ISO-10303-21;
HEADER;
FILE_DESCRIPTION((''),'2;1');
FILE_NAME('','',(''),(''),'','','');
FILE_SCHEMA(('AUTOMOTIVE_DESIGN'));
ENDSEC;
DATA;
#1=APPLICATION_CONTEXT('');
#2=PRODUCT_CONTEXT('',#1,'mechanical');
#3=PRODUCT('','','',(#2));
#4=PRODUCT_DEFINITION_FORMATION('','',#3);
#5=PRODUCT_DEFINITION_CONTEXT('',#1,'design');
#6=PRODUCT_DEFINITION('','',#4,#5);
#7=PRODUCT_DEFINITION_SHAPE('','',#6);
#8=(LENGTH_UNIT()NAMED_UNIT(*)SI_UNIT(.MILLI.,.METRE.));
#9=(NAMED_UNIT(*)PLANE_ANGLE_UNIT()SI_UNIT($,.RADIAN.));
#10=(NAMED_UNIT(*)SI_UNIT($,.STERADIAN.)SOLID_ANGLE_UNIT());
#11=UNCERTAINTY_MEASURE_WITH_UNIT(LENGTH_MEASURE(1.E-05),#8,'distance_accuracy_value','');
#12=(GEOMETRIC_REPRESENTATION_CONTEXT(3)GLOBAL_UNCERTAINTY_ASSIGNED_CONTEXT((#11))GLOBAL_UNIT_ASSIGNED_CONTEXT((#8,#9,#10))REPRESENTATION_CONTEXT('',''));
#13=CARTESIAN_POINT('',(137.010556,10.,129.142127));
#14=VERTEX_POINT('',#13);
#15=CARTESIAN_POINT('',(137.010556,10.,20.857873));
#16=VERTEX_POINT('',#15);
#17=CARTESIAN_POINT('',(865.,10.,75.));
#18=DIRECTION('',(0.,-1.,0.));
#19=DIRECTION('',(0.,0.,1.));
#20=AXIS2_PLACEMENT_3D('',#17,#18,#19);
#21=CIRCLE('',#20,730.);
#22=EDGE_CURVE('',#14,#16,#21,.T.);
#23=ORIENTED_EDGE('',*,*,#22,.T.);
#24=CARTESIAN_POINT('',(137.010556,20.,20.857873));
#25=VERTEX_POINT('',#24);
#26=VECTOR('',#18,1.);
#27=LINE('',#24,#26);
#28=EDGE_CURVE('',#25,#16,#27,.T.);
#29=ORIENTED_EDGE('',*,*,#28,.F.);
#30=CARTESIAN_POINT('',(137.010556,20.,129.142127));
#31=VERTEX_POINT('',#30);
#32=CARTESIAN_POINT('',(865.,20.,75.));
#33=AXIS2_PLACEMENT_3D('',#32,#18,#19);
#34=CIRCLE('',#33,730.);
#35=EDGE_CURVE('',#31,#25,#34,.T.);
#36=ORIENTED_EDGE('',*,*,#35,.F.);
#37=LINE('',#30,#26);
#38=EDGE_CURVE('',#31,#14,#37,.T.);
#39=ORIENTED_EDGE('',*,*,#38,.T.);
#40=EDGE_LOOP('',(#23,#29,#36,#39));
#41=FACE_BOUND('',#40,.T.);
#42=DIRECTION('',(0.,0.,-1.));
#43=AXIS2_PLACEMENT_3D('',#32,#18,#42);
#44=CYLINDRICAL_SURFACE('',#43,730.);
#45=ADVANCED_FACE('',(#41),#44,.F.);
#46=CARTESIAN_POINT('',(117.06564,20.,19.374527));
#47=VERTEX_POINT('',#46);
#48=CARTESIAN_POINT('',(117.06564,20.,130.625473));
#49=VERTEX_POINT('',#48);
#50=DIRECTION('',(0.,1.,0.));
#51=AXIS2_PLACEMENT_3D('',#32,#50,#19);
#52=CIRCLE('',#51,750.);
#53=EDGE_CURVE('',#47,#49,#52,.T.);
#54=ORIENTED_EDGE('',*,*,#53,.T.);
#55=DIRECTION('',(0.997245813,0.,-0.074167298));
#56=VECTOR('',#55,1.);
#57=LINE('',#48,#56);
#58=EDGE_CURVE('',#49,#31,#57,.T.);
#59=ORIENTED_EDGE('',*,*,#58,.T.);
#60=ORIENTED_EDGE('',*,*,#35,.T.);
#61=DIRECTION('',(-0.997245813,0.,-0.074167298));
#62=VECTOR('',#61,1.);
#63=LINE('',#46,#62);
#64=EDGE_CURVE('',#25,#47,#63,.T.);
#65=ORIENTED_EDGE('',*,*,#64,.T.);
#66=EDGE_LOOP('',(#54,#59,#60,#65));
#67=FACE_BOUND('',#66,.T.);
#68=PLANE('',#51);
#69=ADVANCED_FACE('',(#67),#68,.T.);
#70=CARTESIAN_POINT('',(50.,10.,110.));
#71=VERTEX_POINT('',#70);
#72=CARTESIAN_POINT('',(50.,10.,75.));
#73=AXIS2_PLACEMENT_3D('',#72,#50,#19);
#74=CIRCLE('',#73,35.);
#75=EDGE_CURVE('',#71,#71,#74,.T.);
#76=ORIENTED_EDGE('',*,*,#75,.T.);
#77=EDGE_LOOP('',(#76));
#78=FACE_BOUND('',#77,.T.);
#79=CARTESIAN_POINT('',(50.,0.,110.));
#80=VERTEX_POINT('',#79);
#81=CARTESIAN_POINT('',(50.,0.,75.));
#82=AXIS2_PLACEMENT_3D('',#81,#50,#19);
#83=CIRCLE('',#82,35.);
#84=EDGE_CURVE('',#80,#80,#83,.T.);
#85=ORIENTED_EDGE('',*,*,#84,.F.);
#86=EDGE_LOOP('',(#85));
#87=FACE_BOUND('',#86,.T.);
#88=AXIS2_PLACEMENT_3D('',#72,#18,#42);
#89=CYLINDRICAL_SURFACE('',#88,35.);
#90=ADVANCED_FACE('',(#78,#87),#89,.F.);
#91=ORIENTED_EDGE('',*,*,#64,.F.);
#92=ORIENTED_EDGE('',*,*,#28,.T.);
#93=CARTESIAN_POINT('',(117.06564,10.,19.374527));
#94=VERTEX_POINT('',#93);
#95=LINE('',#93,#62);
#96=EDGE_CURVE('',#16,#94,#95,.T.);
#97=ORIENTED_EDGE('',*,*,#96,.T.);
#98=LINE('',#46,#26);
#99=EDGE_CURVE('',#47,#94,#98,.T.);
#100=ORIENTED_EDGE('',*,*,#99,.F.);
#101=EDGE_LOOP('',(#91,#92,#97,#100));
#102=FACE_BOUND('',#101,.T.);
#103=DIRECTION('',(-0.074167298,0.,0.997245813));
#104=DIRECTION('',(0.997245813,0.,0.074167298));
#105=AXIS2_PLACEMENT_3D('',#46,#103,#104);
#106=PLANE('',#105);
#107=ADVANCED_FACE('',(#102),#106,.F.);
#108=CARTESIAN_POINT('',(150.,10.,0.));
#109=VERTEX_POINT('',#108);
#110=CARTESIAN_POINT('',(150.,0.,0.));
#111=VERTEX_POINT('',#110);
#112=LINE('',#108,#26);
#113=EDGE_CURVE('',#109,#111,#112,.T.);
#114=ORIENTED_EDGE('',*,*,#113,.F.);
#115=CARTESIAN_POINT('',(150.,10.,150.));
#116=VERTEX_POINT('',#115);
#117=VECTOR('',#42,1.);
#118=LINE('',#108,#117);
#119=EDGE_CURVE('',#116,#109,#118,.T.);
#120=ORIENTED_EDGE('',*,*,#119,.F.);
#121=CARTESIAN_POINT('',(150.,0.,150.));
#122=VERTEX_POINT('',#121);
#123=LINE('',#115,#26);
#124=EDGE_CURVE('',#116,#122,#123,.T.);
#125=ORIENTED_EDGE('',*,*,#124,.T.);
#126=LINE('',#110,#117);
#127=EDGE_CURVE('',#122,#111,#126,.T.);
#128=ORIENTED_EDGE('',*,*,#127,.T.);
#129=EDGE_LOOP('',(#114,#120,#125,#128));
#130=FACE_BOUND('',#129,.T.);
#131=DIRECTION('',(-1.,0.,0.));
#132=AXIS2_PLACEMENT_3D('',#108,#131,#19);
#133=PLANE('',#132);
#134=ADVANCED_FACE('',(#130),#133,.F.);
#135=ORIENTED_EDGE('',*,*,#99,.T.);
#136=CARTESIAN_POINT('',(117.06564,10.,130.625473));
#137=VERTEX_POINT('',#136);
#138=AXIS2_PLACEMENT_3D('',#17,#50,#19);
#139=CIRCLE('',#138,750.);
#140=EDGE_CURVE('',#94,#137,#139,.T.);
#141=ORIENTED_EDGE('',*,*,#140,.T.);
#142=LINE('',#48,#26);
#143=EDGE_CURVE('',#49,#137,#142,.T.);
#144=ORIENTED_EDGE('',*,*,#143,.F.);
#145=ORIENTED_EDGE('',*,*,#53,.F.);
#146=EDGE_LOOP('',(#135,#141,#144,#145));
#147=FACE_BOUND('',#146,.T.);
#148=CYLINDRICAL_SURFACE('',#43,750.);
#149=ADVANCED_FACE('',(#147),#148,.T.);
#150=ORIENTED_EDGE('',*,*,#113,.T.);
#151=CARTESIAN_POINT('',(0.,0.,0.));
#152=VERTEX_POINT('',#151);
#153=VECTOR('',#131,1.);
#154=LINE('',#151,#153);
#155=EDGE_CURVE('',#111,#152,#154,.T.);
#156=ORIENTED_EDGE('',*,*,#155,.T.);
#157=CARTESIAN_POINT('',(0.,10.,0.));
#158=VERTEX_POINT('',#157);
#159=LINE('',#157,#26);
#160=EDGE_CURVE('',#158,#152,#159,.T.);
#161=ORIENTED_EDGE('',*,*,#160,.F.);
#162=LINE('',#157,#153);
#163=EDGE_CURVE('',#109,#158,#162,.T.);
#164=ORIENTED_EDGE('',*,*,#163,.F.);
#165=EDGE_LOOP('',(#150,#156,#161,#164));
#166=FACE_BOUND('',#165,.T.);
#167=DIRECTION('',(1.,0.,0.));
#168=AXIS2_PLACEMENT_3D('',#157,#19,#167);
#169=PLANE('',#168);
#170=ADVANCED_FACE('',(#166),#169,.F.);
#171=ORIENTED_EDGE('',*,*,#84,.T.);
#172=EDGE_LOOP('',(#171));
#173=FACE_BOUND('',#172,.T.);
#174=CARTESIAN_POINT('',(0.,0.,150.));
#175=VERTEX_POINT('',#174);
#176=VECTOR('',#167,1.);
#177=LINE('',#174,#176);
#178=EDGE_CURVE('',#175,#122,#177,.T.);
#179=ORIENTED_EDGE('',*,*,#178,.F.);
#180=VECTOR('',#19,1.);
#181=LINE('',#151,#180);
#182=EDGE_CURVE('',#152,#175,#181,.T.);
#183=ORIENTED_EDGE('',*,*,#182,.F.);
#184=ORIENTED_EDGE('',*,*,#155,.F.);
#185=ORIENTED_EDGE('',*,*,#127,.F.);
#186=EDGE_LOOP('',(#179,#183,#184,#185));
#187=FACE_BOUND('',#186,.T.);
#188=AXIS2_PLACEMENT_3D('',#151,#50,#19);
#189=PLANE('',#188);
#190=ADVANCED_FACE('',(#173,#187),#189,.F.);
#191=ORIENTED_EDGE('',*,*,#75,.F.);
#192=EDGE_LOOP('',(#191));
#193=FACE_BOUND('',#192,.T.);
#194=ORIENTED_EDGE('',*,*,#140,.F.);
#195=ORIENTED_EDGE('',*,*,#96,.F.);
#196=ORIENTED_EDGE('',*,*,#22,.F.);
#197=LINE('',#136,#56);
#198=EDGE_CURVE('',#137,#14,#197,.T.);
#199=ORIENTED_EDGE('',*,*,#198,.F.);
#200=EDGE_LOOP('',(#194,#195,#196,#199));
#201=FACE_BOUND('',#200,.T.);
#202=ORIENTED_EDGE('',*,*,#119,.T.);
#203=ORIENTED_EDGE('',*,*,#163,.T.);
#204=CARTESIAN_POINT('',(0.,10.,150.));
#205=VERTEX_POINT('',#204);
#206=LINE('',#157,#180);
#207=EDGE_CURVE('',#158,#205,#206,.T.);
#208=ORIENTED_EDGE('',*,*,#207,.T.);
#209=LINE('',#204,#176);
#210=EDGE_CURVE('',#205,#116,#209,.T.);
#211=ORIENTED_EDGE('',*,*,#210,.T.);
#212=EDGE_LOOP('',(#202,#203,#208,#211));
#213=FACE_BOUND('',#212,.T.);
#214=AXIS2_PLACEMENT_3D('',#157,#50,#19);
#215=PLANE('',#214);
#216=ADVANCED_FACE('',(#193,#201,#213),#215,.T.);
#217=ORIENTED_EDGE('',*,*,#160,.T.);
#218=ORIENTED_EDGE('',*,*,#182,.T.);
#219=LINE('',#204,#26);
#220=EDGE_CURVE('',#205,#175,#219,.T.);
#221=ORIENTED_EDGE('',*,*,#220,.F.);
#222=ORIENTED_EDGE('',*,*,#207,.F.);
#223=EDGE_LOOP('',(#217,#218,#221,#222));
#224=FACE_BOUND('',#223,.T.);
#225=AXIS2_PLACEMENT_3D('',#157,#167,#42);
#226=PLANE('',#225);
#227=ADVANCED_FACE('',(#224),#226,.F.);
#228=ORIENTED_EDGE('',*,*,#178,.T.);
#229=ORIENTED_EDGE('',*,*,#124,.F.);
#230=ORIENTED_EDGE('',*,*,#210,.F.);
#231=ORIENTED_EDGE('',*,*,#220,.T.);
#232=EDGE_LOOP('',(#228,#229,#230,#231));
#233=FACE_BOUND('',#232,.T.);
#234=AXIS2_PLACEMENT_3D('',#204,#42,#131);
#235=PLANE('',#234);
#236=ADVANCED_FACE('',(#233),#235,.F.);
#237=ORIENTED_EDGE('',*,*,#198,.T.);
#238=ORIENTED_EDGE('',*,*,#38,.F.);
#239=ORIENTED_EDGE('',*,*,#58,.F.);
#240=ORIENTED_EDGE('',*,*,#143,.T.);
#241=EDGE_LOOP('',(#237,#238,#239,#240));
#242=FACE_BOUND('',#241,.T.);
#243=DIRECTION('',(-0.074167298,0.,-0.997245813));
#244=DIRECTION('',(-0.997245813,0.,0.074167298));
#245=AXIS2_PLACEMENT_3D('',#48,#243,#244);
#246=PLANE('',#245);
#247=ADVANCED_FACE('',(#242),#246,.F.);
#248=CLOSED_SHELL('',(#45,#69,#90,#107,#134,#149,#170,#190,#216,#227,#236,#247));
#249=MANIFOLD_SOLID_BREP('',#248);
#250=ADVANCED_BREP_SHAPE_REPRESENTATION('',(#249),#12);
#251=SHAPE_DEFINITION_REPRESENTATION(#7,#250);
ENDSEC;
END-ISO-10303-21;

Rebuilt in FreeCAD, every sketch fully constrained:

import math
import FreeCAD as App
import Part
import Sketcher

V = App.Vector
Q = App.Units.Quantity

doc = App.newDocument("Part")
body = doc.addObject("PartDesign::Body", "Body")

# Sketch on XZ plane
sketch1 = body.newObject("Sketcher::SketchObject", "Sketch")
sketch1.AttachmentSupport = (doc.getObject("XZ_Plane"), [""])
sketch1.MapMode = "FlatFace"
sketch1.addGeometry(Part.LineSegment(V(0, 0, 0), V(0, 150, 0)), False)
sketch1.addGeometry(Part.LineSegment(V(0, 150, 0), V(150, 150, 0)), False)
sketch1.addGeometry(Part.LineSegment(V(150, 150, 0), V(150, 0, 0)), False)
sketch1.addGeometry(Part.LineSegment(V(150, 0, 0), V(0, 0, 0)), False)
sketch1.addGeometry(Part.Circle(V(50, 75, 0), V(0, 0, 1), 35), False)
sketch1.addConstraint(Sketcher.Constraint("Coincident", 0, 2, 1, 1))
sketch1.addConstraint(Sketcher.Constraint("Coincident", 1, 2, 2, 1))
sketch1.addConstraint(Sketcher.Constraint("Coincident", 2, 2, 3, 1))
sketch1.addConstraint(Sketcher.Constraint("Coincident", 3, 2, 0, 1))
sketch1.addConstraint(Sketcher.Constraint("Vertical", 0))
sketch1.addConstraint(Sketcher.Constraint("Horizontal", 1))
sketch1.addConstraint(Sketcher.Constraint("Vertical", 2))
sketch1.addConstraint(Sketcher.Constraint("Horizontal", 3))
sketch1.addConstraint(Sketcher.Constraint("Coincident", 3, 2, -1, 1))
sketch1.addConstraint(Sketcher.Constraint("Equal", 3, 0))
sketch1.addConstraint(Sketcher.Constraint("Diameter", 4, Q("70 mm")))
sketch1.addConstraint(Sketcher.Constraint("DistanceX", 1, 1, 1, 2, Q("150 mm")))
sketch1.addConstraint(Sketcher.Constraint("DistanceX", -1, 1, 4, 3, Q("50 mm")))
sketch1.addConstraint(Sketcher.Constraint("DistanceY", -1, 1, 4, 3, Q("75 mm")))
pad1 = body.newObject("PartDesign::Pad", "Pad")
pad1.Profile = sketch1
pad1.Length = 10
pad1.Reversed = True

# Sketch on XZ plane
sketch2 = body.newObject("Sketcher::SketchObject", "Sketch001")
sketch2.AttachmentSupport = (doc.getObject("XZ_Plane"), [""])
sketch2.MapMode = "FlatFace"
sketch2.AttachmentOffset = App.Placement(V(0, 0, -10), App.Rotation())
sketch2.addGeometry(Part.LineSegment(V(137, 21, 0), V(117, 19, 0)), False)
sketch2.addGeometry(Part.ArcOfCircle(Part.Circle(V(865, 75, 0), V(0, 0, 1), 750), math.radians(175.75), math.radians(184.25)), False)
sketch2.addGeometry(Part.LineSegment(V(117, 131, 0), V(137, 129, 0)), False)
sketch2.addGeometry(Part.ArcOfCircle(Part.Circle(V(865, 75, 0), V(0, 0, 1), 730), math.radians(175.75), math.radians(184.25)), False)
sketch2.addConstraint(Sketcher.Constraint("Coincident", 0, 2, 1, 2))
sketch2.addConstraint(Sketcher.Constraint("Coincident", 1, 1, 2, 1))
sketch2.addConstraint(Sketcher.Constraint("Coincident", 2, 2, 3, 1))
sketch2.addConstraint(Sketcher.Constraint("Coincident", 3, 2, 0, 1))
sketch2.addConstraint(Sketcher.Constraint("Coincident", 3, 3, 1, 3))
sketch2.addConstraint(Sketcher.Constraint("Vertical", 0, 2, 1, 1))
sketch2.addConstraint(Sketcher.Constraint("Vertical", 2, 2, 3, 2))
sketch2.addConstraint(Sketcher.Constraint("Radius", 1, Q("750 mm")))
sketch2.addConstraint(Sketcher.Constraint("Radius", 3, Q("730 mm")))
sketch2.addConstraint(Sketcher.Constraint("DistanceX", -1, 1, 1, 3, Q("865 mm")))
sketch2.addConstraint(Sketcher.Constraint("DistanceY", -1, 1, 1, 3, Q("75 mm")))
sketch2.addConstraint(Sketcher.Constraint("DistanceY", 0, 2, 2, 2, Q("109.767601 mm")))
sketch2.addConstraint(Sketcher.Constraint("DistanceX", -1, 1, 0, 2, Q("117.06564 mm")))
pad2 = body.newObject("PartDesign::Pad", "Pad001")
pad2.Profile = sketch2
pad2.Length = 10
pad2.Reversed = True

doc.recompute()
